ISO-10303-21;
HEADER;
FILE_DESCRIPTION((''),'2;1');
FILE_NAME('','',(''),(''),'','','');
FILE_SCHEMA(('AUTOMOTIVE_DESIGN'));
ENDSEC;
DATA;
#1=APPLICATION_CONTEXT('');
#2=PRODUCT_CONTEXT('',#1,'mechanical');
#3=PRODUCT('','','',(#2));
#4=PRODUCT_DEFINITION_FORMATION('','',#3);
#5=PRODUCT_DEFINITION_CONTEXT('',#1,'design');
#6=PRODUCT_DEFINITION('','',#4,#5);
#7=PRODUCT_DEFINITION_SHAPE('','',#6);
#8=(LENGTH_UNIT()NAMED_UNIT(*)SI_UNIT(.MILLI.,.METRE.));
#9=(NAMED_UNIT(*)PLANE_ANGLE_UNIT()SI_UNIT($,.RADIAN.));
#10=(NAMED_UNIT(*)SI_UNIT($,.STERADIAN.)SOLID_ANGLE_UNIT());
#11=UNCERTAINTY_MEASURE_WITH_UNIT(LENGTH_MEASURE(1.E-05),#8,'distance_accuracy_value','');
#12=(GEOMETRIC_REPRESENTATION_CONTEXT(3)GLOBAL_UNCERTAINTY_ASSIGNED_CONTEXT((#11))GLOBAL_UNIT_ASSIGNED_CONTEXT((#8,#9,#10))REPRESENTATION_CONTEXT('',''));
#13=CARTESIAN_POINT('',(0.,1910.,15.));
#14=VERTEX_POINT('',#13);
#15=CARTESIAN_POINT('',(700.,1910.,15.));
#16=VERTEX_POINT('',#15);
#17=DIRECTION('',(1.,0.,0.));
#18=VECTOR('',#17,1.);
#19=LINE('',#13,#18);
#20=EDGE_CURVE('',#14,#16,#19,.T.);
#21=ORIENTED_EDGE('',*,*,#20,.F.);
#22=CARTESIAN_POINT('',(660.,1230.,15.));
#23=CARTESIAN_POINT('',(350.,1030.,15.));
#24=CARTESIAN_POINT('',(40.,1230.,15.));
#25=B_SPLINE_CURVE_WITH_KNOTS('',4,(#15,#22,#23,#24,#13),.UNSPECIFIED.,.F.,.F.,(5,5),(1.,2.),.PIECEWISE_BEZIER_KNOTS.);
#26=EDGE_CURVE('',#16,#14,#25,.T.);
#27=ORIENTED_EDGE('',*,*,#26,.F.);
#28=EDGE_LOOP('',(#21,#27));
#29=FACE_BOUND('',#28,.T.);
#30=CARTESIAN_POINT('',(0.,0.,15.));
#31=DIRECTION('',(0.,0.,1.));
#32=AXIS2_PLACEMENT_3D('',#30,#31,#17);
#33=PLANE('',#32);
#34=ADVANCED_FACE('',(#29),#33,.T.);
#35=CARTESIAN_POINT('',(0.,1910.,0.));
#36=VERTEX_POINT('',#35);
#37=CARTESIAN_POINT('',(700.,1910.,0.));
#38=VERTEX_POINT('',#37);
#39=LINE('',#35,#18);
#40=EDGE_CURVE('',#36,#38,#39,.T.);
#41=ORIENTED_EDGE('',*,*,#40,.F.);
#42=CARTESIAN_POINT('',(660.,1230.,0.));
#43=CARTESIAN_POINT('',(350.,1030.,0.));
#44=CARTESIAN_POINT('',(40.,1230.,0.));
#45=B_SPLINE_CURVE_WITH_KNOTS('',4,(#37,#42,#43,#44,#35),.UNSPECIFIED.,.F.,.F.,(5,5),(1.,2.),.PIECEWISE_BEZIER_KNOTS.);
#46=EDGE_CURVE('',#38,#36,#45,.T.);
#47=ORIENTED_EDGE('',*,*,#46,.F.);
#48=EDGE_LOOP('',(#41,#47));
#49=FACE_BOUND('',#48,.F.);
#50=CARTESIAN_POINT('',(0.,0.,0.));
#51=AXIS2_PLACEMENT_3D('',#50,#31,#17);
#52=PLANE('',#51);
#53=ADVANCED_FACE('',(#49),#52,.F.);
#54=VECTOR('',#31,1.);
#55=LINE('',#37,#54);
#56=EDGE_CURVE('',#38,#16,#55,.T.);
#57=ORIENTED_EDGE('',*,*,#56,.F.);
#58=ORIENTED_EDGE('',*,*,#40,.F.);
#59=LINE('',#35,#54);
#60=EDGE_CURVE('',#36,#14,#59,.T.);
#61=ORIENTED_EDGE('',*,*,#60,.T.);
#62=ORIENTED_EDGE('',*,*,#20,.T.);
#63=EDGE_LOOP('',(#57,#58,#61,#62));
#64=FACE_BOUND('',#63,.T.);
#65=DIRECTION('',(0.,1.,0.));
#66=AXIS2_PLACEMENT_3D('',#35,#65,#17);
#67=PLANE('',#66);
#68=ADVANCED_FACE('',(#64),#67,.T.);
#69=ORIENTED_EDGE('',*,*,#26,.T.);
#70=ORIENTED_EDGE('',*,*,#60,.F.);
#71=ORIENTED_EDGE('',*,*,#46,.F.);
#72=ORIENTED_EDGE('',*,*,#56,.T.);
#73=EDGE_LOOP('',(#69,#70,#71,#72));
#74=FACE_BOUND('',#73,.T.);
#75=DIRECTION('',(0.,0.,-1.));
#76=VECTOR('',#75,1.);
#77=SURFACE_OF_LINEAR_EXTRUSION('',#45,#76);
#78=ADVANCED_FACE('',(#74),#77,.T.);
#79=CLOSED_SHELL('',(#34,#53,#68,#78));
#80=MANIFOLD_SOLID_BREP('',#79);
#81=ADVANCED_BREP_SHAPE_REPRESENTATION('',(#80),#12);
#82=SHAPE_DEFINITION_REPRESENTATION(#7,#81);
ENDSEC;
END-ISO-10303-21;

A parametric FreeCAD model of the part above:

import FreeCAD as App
import Part
import Sketcher

V = App.Vector

doc = App.newDocument("Part")
body = doc.addObject("PartDesign::Body", "Body")

# Sketch on XY plane
sketch1 = body.newObject("Sketcher::SketchObject", "Sketch")
sketch1.AttachmentSupport = (doc.getObject("XY_Plane"), [""])
sketch1.MapMode = "FlatFace"
sketch1.addGeometry(Part.LineSegment(V(700, 1910, 0), V(0, 1910, 0)), False)
sketch1.addGeometry(Part.BSplineCurve([V(700, 1910, 0), V(660, 1230, 0), V(350, 1030, 0), V(40, 1230, 0), V(0, 1910, 0)], [5, 5], [1, 2], False, 4, [1, 1, 1, 1, 1], False), False)
sketch1.addConstraint(Sketcher.Constraint("Block", 1))
sketch1.addConstraint(Sketcher.Constraint("Coincident", 0, 1, 1, 1))
sketch1.addConstraint(Sketcher.Constraint("Coincident", 1, 2, 0, 2))
pad1 = body.newObject("PartDesign::Pad", "Pad")
pad1.Profile = sketch1
pad1.Length = 15

doc.recompute()
